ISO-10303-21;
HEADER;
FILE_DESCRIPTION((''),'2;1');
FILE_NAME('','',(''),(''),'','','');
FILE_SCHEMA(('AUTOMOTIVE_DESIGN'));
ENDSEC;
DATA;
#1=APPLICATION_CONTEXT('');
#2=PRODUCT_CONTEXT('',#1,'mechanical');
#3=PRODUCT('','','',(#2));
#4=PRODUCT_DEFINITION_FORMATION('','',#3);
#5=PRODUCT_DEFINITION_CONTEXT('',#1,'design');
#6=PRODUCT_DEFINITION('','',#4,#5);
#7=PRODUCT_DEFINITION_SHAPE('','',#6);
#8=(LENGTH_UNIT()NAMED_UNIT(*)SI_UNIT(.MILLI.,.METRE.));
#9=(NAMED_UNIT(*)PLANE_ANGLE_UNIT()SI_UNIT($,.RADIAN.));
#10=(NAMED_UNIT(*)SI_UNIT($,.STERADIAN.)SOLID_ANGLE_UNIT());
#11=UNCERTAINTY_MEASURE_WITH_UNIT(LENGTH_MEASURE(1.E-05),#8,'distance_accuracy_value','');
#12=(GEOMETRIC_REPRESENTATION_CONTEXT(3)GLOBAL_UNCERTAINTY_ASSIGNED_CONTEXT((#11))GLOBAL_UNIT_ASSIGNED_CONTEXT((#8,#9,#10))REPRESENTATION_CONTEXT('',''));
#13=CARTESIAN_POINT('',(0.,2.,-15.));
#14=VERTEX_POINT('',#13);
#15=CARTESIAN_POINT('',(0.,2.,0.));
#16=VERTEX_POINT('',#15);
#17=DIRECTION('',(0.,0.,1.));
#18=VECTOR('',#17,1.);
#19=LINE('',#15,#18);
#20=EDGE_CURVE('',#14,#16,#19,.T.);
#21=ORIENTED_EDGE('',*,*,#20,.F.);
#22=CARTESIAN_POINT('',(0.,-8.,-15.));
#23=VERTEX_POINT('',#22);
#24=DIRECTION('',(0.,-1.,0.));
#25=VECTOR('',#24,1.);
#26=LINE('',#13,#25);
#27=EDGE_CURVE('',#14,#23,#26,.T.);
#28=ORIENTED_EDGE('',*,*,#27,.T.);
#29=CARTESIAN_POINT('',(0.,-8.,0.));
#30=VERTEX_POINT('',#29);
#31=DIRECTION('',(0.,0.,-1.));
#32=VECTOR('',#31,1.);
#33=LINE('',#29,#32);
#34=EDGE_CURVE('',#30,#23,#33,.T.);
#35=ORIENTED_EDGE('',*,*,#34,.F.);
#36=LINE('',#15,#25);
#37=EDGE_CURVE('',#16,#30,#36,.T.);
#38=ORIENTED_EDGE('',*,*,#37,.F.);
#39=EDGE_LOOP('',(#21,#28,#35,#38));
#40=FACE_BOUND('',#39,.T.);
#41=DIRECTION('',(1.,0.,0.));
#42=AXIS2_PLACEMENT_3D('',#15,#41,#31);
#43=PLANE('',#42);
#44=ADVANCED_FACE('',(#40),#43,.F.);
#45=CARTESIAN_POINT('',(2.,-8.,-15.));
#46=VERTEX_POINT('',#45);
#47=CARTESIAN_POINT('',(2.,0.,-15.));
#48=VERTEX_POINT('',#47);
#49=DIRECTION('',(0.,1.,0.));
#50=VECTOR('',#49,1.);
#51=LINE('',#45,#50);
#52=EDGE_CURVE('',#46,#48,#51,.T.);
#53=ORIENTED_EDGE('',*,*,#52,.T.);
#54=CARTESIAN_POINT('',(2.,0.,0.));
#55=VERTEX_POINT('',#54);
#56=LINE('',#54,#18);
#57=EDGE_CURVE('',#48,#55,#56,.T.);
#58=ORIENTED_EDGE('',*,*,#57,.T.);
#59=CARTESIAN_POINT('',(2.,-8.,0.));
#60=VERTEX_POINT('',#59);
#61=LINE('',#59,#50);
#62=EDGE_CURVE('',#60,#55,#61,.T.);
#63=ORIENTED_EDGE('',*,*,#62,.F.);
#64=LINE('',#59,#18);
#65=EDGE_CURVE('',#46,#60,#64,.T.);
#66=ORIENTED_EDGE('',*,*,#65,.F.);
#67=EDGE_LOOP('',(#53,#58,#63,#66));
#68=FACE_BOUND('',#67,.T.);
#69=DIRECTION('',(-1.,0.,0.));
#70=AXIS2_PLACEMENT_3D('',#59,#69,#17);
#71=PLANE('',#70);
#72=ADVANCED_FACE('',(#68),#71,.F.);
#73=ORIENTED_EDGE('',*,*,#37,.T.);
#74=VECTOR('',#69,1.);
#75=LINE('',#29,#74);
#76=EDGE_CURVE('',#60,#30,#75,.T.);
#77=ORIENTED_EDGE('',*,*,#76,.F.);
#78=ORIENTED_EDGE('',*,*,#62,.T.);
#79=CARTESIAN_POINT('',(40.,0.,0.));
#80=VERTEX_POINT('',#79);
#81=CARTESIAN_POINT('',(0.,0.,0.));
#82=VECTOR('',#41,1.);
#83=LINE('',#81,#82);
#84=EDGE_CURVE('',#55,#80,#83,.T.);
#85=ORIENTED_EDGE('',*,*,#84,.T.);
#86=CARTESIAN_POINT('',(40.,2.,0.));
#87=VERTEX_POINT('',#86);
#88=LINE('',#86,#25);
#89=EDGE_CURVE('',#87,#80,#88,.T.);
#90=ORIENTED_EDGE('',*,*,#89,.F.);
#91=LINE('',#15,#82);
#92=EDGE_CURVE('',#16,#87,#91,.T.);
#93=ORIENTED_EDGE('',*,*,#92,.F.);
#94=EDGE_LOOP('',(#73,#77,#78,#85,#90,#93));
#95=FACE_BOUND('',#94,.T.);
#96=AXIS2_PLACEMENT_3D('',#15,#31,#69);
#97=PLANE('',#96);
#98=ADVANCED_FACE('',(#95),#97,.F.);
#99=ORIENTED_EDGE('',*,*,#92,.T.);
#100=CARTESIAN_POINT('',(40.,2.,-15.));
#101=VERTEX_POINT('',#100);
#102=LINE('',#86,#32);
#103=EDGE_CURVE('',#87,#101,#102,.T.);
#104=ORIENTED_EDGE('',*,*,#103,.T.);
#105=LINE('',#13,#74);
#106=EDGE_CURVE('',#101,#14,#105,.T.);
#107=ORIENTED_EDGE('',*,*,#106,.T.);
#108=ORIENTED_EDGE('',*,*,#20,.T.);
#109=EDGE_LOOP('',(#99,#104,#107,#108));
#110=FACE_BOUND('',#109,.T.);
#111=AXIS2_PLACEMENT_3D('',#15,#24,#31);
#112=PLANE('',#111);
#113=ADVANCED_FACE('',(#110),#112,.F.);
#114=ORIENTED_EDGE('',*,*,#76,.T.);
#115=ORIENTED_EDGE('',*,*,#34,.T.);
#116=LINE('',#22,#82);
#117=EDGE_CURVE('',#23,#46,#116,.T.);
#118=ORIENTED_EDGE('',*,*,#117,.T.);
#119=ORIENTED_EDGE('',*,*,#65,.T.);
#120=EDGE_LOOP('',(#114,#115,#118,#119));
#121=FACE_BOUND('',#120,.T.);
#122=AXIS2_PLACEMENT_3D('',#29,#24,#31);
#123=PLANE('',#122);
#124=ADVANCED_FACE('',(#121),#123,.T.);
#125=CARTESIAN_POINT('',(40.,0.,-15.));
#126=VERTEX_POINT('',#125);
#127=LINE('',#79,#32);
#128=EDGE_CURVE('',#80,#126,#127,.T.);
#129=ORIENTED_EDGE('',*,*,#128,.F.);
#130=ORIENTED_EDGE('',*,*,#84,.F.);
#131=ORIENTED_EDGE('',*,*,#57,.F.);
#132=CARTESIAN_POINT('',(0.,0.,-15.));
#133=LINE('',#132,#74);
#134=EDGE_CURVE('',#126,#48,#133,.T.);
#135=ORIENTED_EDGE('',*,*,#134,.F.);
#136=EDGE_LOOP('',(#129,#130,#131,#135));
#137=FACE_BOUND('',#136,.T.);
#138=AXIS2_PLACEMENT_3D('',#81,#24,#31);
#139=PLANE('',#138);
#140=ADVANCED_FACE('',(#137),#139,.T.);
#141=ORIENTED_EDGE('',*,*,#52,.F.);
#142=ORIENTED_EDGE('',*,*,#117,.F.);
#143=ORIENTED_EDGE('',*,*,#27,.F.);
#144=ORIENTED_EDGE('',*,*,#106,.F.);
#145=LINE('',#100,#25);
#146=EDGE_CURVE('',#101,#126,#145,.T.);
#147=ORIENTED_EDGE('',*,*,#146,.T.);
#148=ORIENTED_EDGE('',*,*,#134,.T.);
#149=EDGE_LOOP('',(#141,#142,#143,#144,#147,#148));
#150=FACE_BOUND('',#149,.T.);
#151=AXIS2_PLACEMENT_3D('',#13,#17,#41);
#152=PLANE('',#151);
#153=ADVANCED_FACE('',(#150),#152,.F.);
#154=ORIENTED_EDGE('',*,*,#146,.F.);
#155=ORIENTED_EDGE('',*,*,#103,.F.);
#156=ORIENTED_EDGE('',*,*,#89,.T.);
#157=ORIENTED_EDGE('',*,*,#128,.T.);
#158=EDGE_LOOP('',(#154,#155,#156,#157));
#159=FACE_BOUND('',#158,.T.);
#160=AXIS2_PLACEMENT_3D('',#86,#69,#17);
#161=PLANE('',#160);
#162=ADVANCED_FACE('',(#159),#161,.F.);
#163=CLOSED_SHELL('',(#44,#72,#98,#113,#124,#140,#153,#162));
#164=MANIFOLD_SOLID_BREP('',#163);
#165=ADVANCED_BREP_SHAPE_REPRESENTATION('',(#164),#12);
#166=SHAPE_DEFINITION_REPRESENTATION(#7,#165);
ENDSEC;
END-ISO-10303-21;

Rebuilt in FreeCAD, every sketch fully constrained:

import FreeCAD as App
import Part
import Sketcher

V = App.Vector
Q = App.Units.Quantity

doc = App.newDocument("Part")
body = doc.addObject("PartDesign::Body", "Body")

sketch1 = body.newObject("Sketcher::SketchObject", "Sketch")
sketch1.AttachmentSupport = (doc.getObject("XZ_Plane"), [""])
sketch1.MapMode = "FlatFace"
sketch1.addGeometry([
    Part.LineSegment(V(0, -15, 0), V(0, 0, 0)),
    Part.LineSegment(V(0, 0, 0), V(40, 0, 0)),
    Part.LineSegment(V(40, 0, 0), V(40, -15, 0)),
    Part.LineSegment(V(40, -15, 0), V(0, -15, 0)),
], False)
sketch1.addConstraint([
    Sketcher.Constraint("Coincident", 0, 2, 1, 1),
    Sketcher.Constraint("Coincident", 1, 2, 2, 1),
    Sketcher.Constraint("Coincident", 2, 2, 3, 1),
    Sketcher.Constraint("Coincident", 3, 2, 0, 1),
    Sketcher.Constraint("Vertical", 0),
    Sketcher.Constraint("Horizontal", 1),
    Sketcher.Constraint("Vertical", 2),
    Sketcher.Constraint("Horizontal", 3),
    Sketcher.Constraint("Coincident", 0, 2, -1, 1),
    Sketcher.Constraint("DistanceX", 1, 1, 1, 2, Q("40 mm")),
    Sketcher.Constraint("DistanceY", 0, 1, 0, 2, Q("15 mm")),
])
pad1 = body.newObject("PartDesign::Pad", "Pad")
pad1.Profile = sketch1
pad1.Length = 2
pad1.Reversed = True

sketch2 = body.newObject("Sketcher::SketchObject", "Sketch001")
sketch2.AttachmentSupport = (doc.getObject("XZ_Plane"), [""])
sketch2.MapMode = "FlatFace"
sketch2.addGeometry([
    Part.LineSegment(V(0, 0, 0), V(0, -15, 0)),
    Part.LineSegment(V(0, -15, 0), V(2, -15, 0)),
    Part.LineSegment(V(2, -15, 0), V(2, 0, 0)),
    Part.LineSegment(V(2, 0, 0), V(0, 0, 0)),
], False)
sketch2.addConstraint([
    Sketcher.Constraint("Coincident", 0, 2, 1, 1),
    Sketcher.Constraint("Coincident", 1, 2, 2, 1),
    Sketcher.Constraint("Coincident", 2, 2, 3, 1),
    Sketcher.Constraint("Coincident", 3, 2, 0, 1),
    Sketcher.Constraint("Vertical", 0),
    Sketcher.Constraint("Horizontal", 1),
    Sketcher.Constraint("Vertical", 2),
    Sketcher.Constraint("Horizontal", 3),
    Sketcher.Constraint("Coincident", 3, 2, -1, 1),
    Sketcher.Constraint("DistanceX", 1, 1, 1, 2, Q("2 mm")),
    Sketcher.Constraint("DistanceY", 0, 2, 0, 1, Q("15 mm")),
])
pad2 = body.newObject("PartDesign::Pad", "Pad001")
pad2.Profile = sketch2
pad2.Length = 8

doc.recompute()
